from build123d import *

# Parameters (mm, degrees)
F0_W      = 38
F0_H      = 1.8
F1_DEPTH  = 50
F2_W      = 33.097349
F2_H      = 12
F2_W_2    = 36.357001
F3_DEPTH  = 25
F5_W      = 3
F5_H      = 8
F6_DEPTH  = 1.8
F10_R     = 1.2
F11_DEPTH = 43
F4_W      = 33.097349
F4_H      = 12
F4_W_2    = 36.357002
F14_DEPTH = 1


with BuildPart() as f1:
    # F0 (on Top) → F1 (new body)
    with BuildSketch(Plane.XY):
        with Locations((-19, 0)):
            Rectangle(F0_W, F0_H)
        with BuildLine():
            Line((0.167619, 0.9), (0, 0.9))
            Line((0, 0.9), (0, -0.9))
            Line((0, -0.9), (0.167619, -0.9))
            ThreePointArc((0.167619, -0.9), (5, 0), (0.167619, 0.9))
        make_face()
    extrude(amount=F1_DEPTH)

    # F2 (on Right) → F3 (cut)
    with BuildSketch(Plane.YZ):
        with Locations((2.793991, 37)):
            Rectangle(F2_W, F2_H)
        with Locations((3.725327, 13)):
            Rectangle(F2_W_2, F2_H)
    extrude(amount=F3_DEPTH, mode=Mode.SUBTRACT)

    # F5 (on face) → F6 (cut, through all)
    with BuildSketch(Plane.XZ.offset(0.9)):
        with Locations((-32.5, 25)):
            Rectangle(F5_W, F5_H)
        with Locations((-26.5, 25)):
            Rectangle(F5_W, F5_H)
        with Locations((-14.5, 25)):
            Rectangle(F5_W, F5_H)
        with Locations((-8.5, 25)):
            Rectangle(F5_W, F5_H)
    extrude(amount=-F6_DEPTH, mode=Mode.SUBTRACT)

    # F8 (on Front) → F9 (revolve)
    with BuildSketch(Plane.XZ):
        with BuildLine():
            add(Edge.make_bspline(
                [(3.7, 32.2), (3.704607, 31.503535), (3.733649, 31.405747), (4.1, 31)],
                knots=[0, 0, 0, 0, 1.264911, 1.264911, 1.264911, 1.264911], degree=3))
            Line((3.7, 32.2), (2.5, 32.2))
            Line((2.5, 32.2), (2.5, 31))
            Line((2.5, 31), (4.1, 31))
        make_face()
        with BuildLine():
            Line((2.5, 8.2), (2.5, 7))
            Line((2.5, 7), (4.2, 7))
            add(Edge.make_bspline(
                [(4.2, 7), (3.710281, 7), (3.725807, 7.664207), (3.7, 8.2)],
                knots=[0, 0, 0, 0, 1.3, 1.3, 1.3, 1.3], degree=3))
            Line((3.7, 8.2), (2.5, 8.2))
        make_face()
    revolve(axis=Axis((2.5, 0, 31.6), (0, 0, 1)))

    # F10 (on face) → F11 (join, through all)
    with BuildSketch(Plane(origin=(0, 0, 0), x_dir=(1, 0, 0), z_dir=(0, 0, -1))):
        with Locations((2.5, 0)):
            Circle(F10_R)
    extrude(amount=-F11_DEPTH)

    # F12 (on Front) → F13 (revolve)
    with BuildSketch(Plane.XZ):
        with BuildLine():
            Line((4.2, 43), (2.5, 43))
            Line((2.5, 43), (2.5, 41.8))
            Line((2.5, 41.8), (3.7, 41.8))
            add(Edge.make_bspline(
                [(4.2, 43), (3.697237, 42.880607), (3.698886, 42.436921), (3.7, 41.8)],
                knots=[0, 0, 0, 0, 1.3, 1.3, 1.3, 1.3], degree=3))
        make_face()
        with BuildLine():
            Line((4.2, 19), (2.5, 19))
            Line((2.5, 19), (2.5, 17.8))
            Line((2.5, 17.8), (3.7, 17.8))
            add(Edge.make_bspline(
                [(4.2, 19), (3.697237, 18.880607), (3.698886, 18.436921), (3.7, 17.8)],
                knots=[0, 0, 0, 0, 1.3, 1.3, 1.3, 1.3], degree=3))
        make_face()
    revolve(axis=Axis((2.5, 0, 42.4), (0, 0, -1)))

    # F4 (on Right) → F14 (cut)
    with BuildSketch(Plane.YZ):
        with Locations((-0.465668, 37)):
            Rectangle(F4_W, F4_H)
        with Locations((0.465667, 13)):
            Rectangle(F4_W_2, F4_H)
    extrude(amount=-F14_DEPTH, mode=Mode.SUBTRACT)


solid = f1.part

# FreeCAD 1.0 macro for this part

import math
import FreeCAD as App
import Part
import Sketcher
from FreeCAD import Vector

doc = App.newDocument("Part")
body = doc.addObject("PartDesign::Body", "Body")

# Sketch on XY plane
sketch1 = body.newObject("Sketcher::SketchObject", "Sketch")
sketch1.AttachmentSupport = (doc.getObject("XY_Plane"), [""])
sketch1.MapMode = "FlatFace"
sketch1.addGeometry(Part.LineSegment(Vector(-38, 0.9, 0), Vector(-38, -0.9, 0)), False)
sketch1.addGeometry(Part.LineSegment(Vector(-38, -0.9, 0), Vector(0.2, -0.9, 0)), False)
sketch1.addGeometry(Part.ArcOfCircle(Part.Circle(Vector(2.5, 0, 0), Vector(0, 0, 1), 2.5), math.radians(-159), math.radians(159)), False)
sketch1.addGeometry(Part.LineSegment(Vector(0.2, 0.9, 0), Vector(-38, 0.9, 0)), False)
sketch1.addConstraint(Sketcher.Constraint("Coincident", 0, 2, 1, 1))
sketch1.addConstraint(Sketcher.Constraint("Coincident", 1, 2, 2, 1))
sketch1.addConstraint(Sketcher.Constraint("Coincident", 2, 2, 3, 1))
sketch1.addConstraint(Sketcher.Constraint("Coincident", 3, 2, 0, 1))
sketch1.addConstraint(Sketcher.Constraint("Vertical", 0))
sketch1.addConstraint(Sketcher.Constraint("Horizontal", 1))
sketch1.addConstraint(Sketcher.Constraint("Horizontal", 3))
sketch1.addConstraint(Sketcher.Constraint("Symmetric", 1, 2, 2, 2, -1))
sketch1.addConstraint(Sketcher.Constraint("Radius", 2, 2.5))
sketch1.addConstraint(Sketcher.Constraint("DistanceY", 0, 2, 0, 1, 1.8))
sketch1.addConstraint(Sketcher.Constraint("DistanceX", 0, 2, -1, 1, 38.0))
sketch1.addConstraint(Sketcher.Constraint("DistanceX", -1, 1, 2, 3, 2.5))
pad1 = body.newObject("PartDesign::Pad", "Pad")
pad1.Profile = sketch1
pad1.Length = 50

# Sketch on YZ plane
sketch2 = body.newObject("Sketcher::SketchObject", "Sketch001")
sketch2.AttachmentSupport = (doc.getObject("YZ_Plane"), [""])
sketch2.MapMode = "FlatFace"
sketch2.addGeometry(Part.LineSegment(Vector(-14, 43, 0), Vector(-14, 31, 0)), False)
sketch2.addGeometry(Part.LineSegment(Vector(-14, 31, 0), Vector(19, 31, 0)), False)
sketch2.addGeometry(Part.LineSegment(Vector(19, 31, 0), Vector(19, 43, 0)), False)
sketch2.addGeometry(Part.LineSegment(Vector(19, 43, 0), Vector(-14, 43, 0)), False)
sketch2.addGeometry(Part.LineSegment(Vector(-14, 19, 0), Vector(-14, 7, 0)), False)
sketch2.addGeometry(Part.LineSegment(Vector(-14, 7, 0), Vector(22, 7, 0)), False)
sketch2.addGeometry(Part.LineSegment(Vector(22, 7, 0), Vector(22, 19, 0)), False)
sketch2.addGeometry(Part.LineSegment(Vector(22, 19, 0), Vector(-14, 19, 0)), False)
sketch2.addConstraint(Sketcher.Constraint("Coincident", 0, 2, 1, 1))
sketch2.addConstraint(Sketcher.Constraint("Coincident", 1, 2, 2, 1))
sketch2.addConstraint(Sketcher.Constraint("Coincident", 2, 2, 3, 1))
sketch2.addConstraint(Sketcher.Constraint("Coincident", 3, 2, 0, 1))
sketch2.addConstraint(Sketcher.Constraint("Coincident", 4, 2, 5, 1))
sketch2.addConstraint(Sketcher.Constraint("Coincident", 5, 2, 6, 1))
sketch2.addConstraint(Sketcher.Constraint("Coincident", 6, 2, 7, 1))
sketch2.addConstraint(Sketcher.Constraint("Coincident", 7, 2, 4, 1))
sketch2.addConstraint(Sketcher.Constraint("Vertical", 0))
sketch2.addConstraint(Sketcher.Constraint("Horizontal", 1))
sketch2.addConstraint(Sketcher.Constraint("Vertical", 2))
sketch2.addConstraint(Sketcher.Constraint("Horizontal", 3))
sketch2.addConstraint(Sketcher.Constraint("Vertical", 4))
sketch2.addConstraint(Sketcher.Constraint("Horizontal", 5))
sketch2.addConstraint(Sketcher.Constraint("Vertical", 6))
sketch2.addConstraint(Sketcher.Constraint("Horizontal", 7))
sketch2.addConstraint(Sketcher.Constraint("Equal", 2, 4))
sketch2.addConstraint(Sketcher.Constraint("DistanceY", 0, 2, 0, 1, 12.0))
sketch2.addConstraint(Sketcher.Constraint("DistanceY", -1, 1, 0, 2, 31.0))
sketch2.addConstraint(Sketcher.Constraint("DistanceY", -1, 1, 4, 2, 7.0))
sketch2.addConstraint(Sketcher.Constraint("DistanceX", 5, 1, 5, 2, 36.357001))
sketch2.addConstraint(Sketcher.Constraint("DistanceX", 1, 1, 1, 2, 33.097349))
sketch2.addConstraint(Sketcher.Constraint("DistanceX", 4, 2, 0, 2, 0.69849))
sketch2.addConstraint(Sketcher.Constraint("DistanceX", 0, 2, -1, 1, 13.754684))
pocket1 = body.newObject("PartDesign::Pocket", "Pocket")
pocket1.Profile = sketch2
pocket1.Length = 25
pocket1.Reversed = True

# Sketch on XZ plane
sketch3 = body.newObject("Sketcher::SketchObject", "Sketch002")
sketch3.AttachmentSupport = (doc.getObject("XZ_Plane"), [""])
sketch3.MapMode = "FlatFace"
sketch3.AttachmentOffset = App.Placement(Vector(0, 0, 0.9), App.Rotation())
sketch3.addGeometry(Part.LineSegment(Vector(-34, 29, 0), Vector(-34, 21, 0)), False)
sketch3.addGeometry(Part.LineSegment(Vector(-34, 21, 0), Vector(-31, 21, 0)), False)
sketch3.addGeometry(Part.LineSegment(Vector(-31, 21, 0), Vector(-31, 29, 0)), False)
sketch3.addGeometry(Part.LineSegment(Vector(-31, 29, 0), Vector(-34, 29, 0)), False)
sketch3.addGeometry(Part.LineSegment(Vector(-28, 29, 0), Vector(-28, 21, 0)), False)
sketch3.addGeometry(Part.LineSegment(Vector(-28, 21, 0), Vector(-25, 21, 0)), False)
sketch3.addGeometry(Part.LineSegment(Vector(-25, 21, 0), Vector(-25, 29, 0)), False)
sketch3.addGeometry(Part.LineSegment(Vector(-25, 29, 0), Vector(-28, 29, 0)), False)
sketch3.addGeometry(Part.LineSegment(Vector(-16, 29, 0), Vector(-16, 21, 0)), False)
sketch3.addGeometry(Part.LineSegment(Vector(-16, 21, 0), Vector(-13, 21, 0)), False)
sketch3.addGeometry(Part.LineSegment(Vector(-13, 21, 0), Vector(-13, 29, 0)), False)
sketch3.addGeometry(Part.LineSegment(Vector(-13, 29, 0), Vector(-16, 29, 0)), False)
sketch3.addGeometry(Part.LineSegment(Vector(-10, 29, 0), Vector(-10, 21, 0)), False)
sketch3.addGeometry(Part.LineSegment(Vector(-10, 21, 0), Vector(-7, 21, 0)), False)
sketch3.addGeometry(Part.LineSegment(Vector(-7, 21, 0), Vector(-7, 29, 0)), False)
sketch3.addGeometry(Part.LineSegment(Vector(-7, 29, 0), Vector(-10, 29, 0)), False)
sketch3.addConstraint(Sketcher.Constraint("Coincident", 0, 2, 1, 1))
sketch3.addConstraint(Sketcher.Constraint("Coincident", 1, 2, 2, 1))
sketch3.addConstraint(Sketcher.Constraint("Coincident", 2, 2, 3, 1))
sketch3.addConstraint(Sketcher.Constraint("Coincident", 3, 2, 0, 1))
sketch3.addConstraint(Sketcher.Constraint("Coincident", 4, 2, 5, 1))
sketch3.addConstraint(Sketcher.Constraint("Coincident", 5, 2, 6, 1))
sketch3.addConstraint(Sketcher.Constraint("Coincident", 6, 2, 7, 1))
sketch3.addConstraint(Sketcher.Constraint("Coincident", 7, 2, 4, 1))
sketch3.addConstraint(Sketcher.Constraint("Coincident", 8, 2, 9, 1))
sketch3.addConstraint(Sketcher.Constraint("Coincident", 9, 2, 10, 1))
sketch3.addConstraint(Sketcher.Constraint("Coincident", 10, 2, 11, 1))
sketch3.addConstraint(Sketcher.Constraint("Coincident", 11, 2, 8, 1))
sketch3.addConstraint(Sketcher.Constraint("Coincident", 12, 2, 13, 1))
sketch3.addConstraint(Sketcher.Constraint("Coincident", 13, 2, 14, 1))
sketch3.addConstraint(Sketcher.Constraint("Coincident", 14, 2, 15, 1))
sketch3.addConstraint(Sketcher.Constraint("Coincident", 15, 2, 12, 1))
sketch3.addConstraint(Sketcher.Constraint("Vertical", 0))
sketch3.addConstraint(Sketcher.Constraint("Horizontal", 1))
sketch3.addConstraint(Sketcher.Constraint("Vertical", 2))
sketch3.addConstraint(Sketcher.Constraint("Horizontal", 3))
sketch3.addConstraint(Sketcher.Constraint("Vertical", 4))
sketch3.addConstraint(Sketcher.Constraint("Horizontal", 5))
sketch3.addConstraint(Sketcher.Constraint("Vertical", 6))
sketch3.addConstraint(Sketcher.Constraint("Horizontal", 7))
sketch3.addConstraint(Sketcher.Constraint("Vertical", 8))
sketch3.addConstraint(Sketcher.Constraint("Horizontal", 9))
sketch3.addConstraint(Sketcher.Constraint("Vertical", 10))
sketch3.addConstraint(Sketcher.Constraint("Horizontal", 11))
sketch3.addConstraint(Sketcher.Constraint("Vertical", 12))
sketch3.addConstraint(Sketcher.Constraint("Horizontal", 13))
sketch3.addConstraint(Sketcher.Constraint("Vertical", 14))
sketch3.addConstraint(Sketcher.Constraint("Horizontal", 15))
sketch3.addConstraint(Sketcher.Constraint("Horizontal", 1, 2, 4, 2))
sketch3.addConstraint(Sketcher.Constraint("Horizontal", 3, 2, 6, 2))
sketch3.addConstraint(Sketcher.Constraint("Horizontal", 5, 2, 8, 2))
sketch3.addConstraint(Sketcher.Constraint("Horizontal", 7, 2, 10, 2))
sketch3.addConstraint(Sketcher.Constraint("Horizontal", 9, 2, 12, 2))
sketch3.addConstraint(Sketcher.Constraint("Horizontal", 11, 2, 14, 2))
sketch3.addConstraint(Sketcher.Constraint("Equal", 3, 5))
sketch3.addConstraint(Sketcher.Constraint("Equal", 7, 9))
sketch3.addConstraint(Sketcher.Constraint("Equal", 11, 13))
sketch3.addConstraint(Sketcher.Constraint("DistanceX", 1, 1, 1, 2, 3.0))
sketch3.addConstraint(Sketcher.Constraint("DistanceY", 0, 2, 0, 1, 8.0))
sketch3.addConstraint(Sketcher.Constraint("DistanceX", 0, 2, -1, 1, 34.0))
sketch3.addConstraint(Sketcher.Constraint("DistanceY", -1, 1, 0, 2, 21.0))
sketch3.addConstraint(Sketcher.Constraint("DistanceX", 4, 2, -1, 1, 28.0))
sketch3.addConstraint(Sketcher.Constraint("DistanceX", 8, 2, -1, 1, 16.0))
sketch3.addConstraint(Sketcher.Constraint("DistanceX", 12, 2, -1, 1, 10.0))
pocket2 = body.newObject("PartDesign::Pocket", "Pocket001")
pocket2.Profile = sketch3
pocket2.Type = "ThroughAll"

# Sketch on XZ plane
sketch4 = body.newObject("Sketcher::SketchObject", "Sketch003")
sketch4.AttachmentSupport = (doc.getObject("XZ_Plane"), [""])
sketch4.MapMode = "FlatFace"
sketch4.addGeometry(Part.BSplineCurve([Vector(3.7, 32.2, 0), Vector(3.704607, 31.503535, 0), Vector(3.733649, 31.405747, 0), Vector(4.1, 31, 0)], [4, 4], [0, 1.264911], False, 3, [1, 1, 1, 1], False), False)
sketch4.addGeometry(Part.LineSegment(Vector(3.7, 32.2, 0), Vector(2.5, 32.2, 0)), False)
sketch4.addGeometry(Part.LineSegment(Vector(2.5, 32.2, 0), Vector(2.5, 31, 0)), False)
sketch4.addGeometry(Part.LineSegment(Vector(2.5, 31, 0), Vector(4.1, 31, 0)), False)
sketch4.addGeometry(Part.LineSegment(Vector(2.5, 8.2, 0), Vector(2.5, 7, 0)), False)
sketch4.addGeometry(Part.LineSegment(Vector(2.5, 7, 0), Vector(4.2, 7, 0)), False)
sketch4.addGeometry(Part.BSplineCurve([Vector(4.2, 7, 0), Vector(3.710281, 7, 0), Vector(3.725807, 7.664207, 0), Vector(3.7, 8.2, 0)], [4, 4], [0, 1.3], False, 3, [1, 1, 1, 1], False), False)
sketch4.addGeometry(Part.LineSegment(Vector(3.7, 8.2, 0), Vector(2.5, 8.2, 0)), False)
sketch4.addGeometry(Part.LineSegment(Vector(2.5, 7, 0), Vector(2.5, 32.2, 0)), True)  # axis
sketch4.addConstraint(Sketcher.Constraint("Block", 0))
sketch4.addConstraint(Sketcher.Constraint("Block", 6))
sketch4.addConstraint(Sketcher.Constraint("Coincident", 0, 1, 1, 1))
sketch4.addConstraint(Sketcher.Constraint("Coincident", 1, 2, 2, 1))
sketch4.addConstraint(Sketcher.Constraint("Coincident", 2, 2, 3, 1))
sketch4.addConstraint(Sketcher.Constraint("Coincident", 3, 2, 0, 2))
sketch4.addConstraint(Sketcher.Constraint("Coincident", 4, 2, 5, 1))
sketch4.addConstraint(Sketcher.Constraint("Coincident", 5, 2, 6, 1))
sketch4.addConstraint(Sketcher.Constraint("Coincident", 6, 2, 7, 1))
sketch4.addConstraint(Sketcher.Constraint("Coincident", 7, 2, 4, 1))
sketch4.addConstraint(Sketcher.Constraint("Horizontal", 1))
sketch4.addConstraint(Sketcher.Constraint("Vertical", 2))
sketch4.addConstraint(Sketcher.Constraint("Horizontal", 3))
sketch4.addConstraint(Sketcher.Constraint("Vertical", 4))
sketch4.addConstraint(Sketcher.Constraint("Horizontal", 5))
sketch4.addConstraint(Sketcher.Constraint("Horizontal", 7))
sketch4.addConstraint(Sketcher.Constraint("Vertical", 8))
sketch4.addConstraint(Sketcher.Constraint("Coincident", 8, 1, 4, 2))
sketch4.addConstraint(Sketcher.Constraint("Coincident", 8, 2, 1, 2))
sketch4.addConstraint(Sketcher.Constraint("Equal", 7, 2))
revolution = body.newObject("PartDesign::Revolution", "Revolution")
revolution.Profile = sketch4
revolution.ReferenceAxis = (sketch4, ["Axis0"])
revolution.Angle = 360

# Sketch on XY plane
sketch5 = body.newObject("Sketcher::SketchObject", "Sketch004")
sketch5.AttachmentSupport = (doc.getObject("XY_Plane"), [""])
sketch5.MapMode = "FlatFace"
sketch5.addGeometry(Part.Circle(Vector(2.5, 0, 0), Vector(0, 0, 1), 1.2), False)
sketch5.addConstraint(Sketcher.Constraint("PointOnObject", 0, 3, -1))
sketch5.addConstraint(Sketcher.Constraint("Diameter", 0, 2.4))
sketch5.addConstraint(Sketcher.Constraint("DistanceX", -1, 1, 0, 3, 2.5))
pad2 = body.newObject("PartDesign::Pad", "Pad001")
pad2.Profile = sketch5
pad2.Type = "UpToLast"

# Sketch on XZ plane
sketch6 = body.newObject("Sketcher::SketchObject", "Sketch005")
sketch6.AttachmentSupport = (doc.getObject("XZ_Plane"), [""])
sketch6.MapMode = "FlatFace"
sketch6.addGeometry(Part.LineSegment(Vector(4.2, 43, 0), Vector(2.5, 43, 0)), False)
sketch6.addGeometry(Part.LineSegment(Vector(2.5, 43, 0), Vector(2.5, 41.8, 0)), False)
sketch6.addGeometry(Part.LineSegment(Vector(2.5, 41.8, 0), Vector(3.7, 41.8, 0)), False)
sketch6.addGeometry(Part.BSplineCurve([Vector(4.2, 43, 0), Vector(3.697237, 42.880607, 0), Vector(3.698886, 42.436921, 0), Vector(3.7, 41.8, 0)], [4, 4], [0, 1.3], False, 3, [1, 1, 1, 1], False), False)
sketch6.addGeometry(Part.LineSegment(Vector(4.2, 19, 0), Vector(2.5, 19, 0)), False)
sketch6.addGeometry(Part.LineSegment(Vector(2.5, 19, 0), Vector(2.5, 17.8, 0)), False)
sketch6.addGeometry(Part.LineSegment(Vector(2.5, 17.8, 0), Vector(3.7, 17.8, 0)), False)
sketch6.addGeometry(Part.BSplineCurve([Vector(4.2, 19, 0), Vector(3.697237, 18.880607, 0), Vector(3.698886, 18.436921, 0), Vector(3.7, 17.8, 0)], [4, 4], [0, 1.3], False, 3, [1, 1, 1, 1], False), False)
sketch6.addGeometry(Part.LineSegment(Vector(2.5, 43, 0), Vector(2.5, 17.8, 0)), True)  # axis
sketch6.addConstraint(Sketcher.Constraint("Block", 3))
sketch6.addConstraint(Sketcher.Constraint("Block", 7))
sketch6.addConstraint(Sketcher.Constraint("Coincident", 0, 2, 1, 1))
sketch6.addConstraint(Sketcher.Constraint("Coincident", 1, 2, 2, 1))
sketch6.addConstraint(Sketcher.Constraint("Coincident", 2, 2, 3, 2))
sketch6.addConstraint(Sketcher.Constraint("Coincident", 3, 1, 0, 1))
sketch6.addConstraint(Sketcher.Constraint("Coincident", 4, 2, 5, 1))
sketch6.addConstraint(Sketcher.Constraint("Coincident", 5, 2, 6, 1))
sketch6.addConstraint(Sketcher.Constraint("Coincident", 6, 2, 7, 2))
sketch6.addConstraint(Sketcher.Constraint("Coincident", 7, 1, 4, 1))
sketch6.addConstraint(Sketcher.Constraint("Horizontal", 0))
sketch6.addConstraint(Sketcher.Constraint("Vertical", 1))
sketch6.addConstraint(Sketcher.Constraint("Horizontal", 2))
sketch6.addConstraint(Sketcher.Constraint("Horizontal", 4))
sketch6.addConstraint(Sketcher.Constraint("Vertical", 5))
sketch6.addConstraint(Sketcher.Constraint("Horizontal", 6))
sketch6.addConstraint(Sketcher.Constraint("Vertical", 8))
sketch6.addConstraint(Sketcher.Constraint("Coincident", 8, 1, 0, 2))
sketch6.addConstraint(Sketcher.Constraint("Coincident", 8, 2, 5, 2))
sketch6.addConstraint(Sketcher.Constraint("Equal", 6, 1))
revolution2 = body.newObject("PartDesign::Revolution", "Revolution001")
revolution2.Profile = sketch6
revolution2.ReferenceAxis = (sketch6, ["Axis0"])
revolution2.Angle = 360

# Sketch on YZ plane
sketch7 = body.newObject("Sketcher::SketchObject", "Sketch006")
sketch7.AttachmentSupport = (doc.getObject("YZ_Plane"), [""])
sketch7.MapMode = "FlatFace"
sketch7.addGeometry(Part.LineSegment(Vector(-17, 43, 0), Vector(-17, 31, 0)), False)
sketch7.addGeometry(Part.LineSegment(Vector(-17, 31, 0), Vector(16, 31, 0)), False)
sketch7.addGeometry(Part.LineSegment(Vector(16, 31, 0), Vector(16, 43, 0)), False)
sketch7.addGeometry(Part.LineSegment(Vector(16, 43, 0), Vector(-17, 43, 0)), False)
sketch7.addGeometry(Part.LineSegment(Vector(-18, 19, 0), Vector(-18, 7, 0)), False)
sketch7.addGeometry(Part.LineSegment(Vector(-18, 7, 0), Vector(19, 7, 0)), False)
sketch7.addGeometry(Part.LineSegment(Vector(19, 7, 0), Vector(19, 19, 0)), False)
sketch7.addGeometry(Part.LineSegment(Vector(19, 19, 0), Vector(-18, 19, 0)), False)
sketch7.addConstraint(Sketcher.Constraint("Coincident", 0, 2, 1, 1))
sketch7.addConstraint(Sketcher.Constraint("Coincident", 1, 2, 2, 1))
sketch7.addConstraint(Sketcher.Constraint("Coincident", 2, 2, 3, 1))
sketch7.addConstraint(Sketcher.Constraint("Coincident", 3, 2, 0, 1))
sketch7.addConstraint(Sketcher.Constraint("Coincident", 4, 2, 5, 1))
sketch7.addConstraint(Sketcher.Constraint("Coincident", 5, 2, 6, 1))
sketch7.addConstraint(Sketcher.Constraint("Coincident", 6, 2, 7, 1))
sketch7.addConstraint(Sketcher.Constraint("Coincident", 7, 2, 4, 1))
sketch7.addConstraint(Sketcher.Constraint("Vertical", 0))
sketch7.addConstraint(Sketcher.Constraint("Horizontal", 1))
sketch7.addConstraint(Sketcher.Constraint("Vertical", 2))
sketch7.addConstraint(Sketcher.Constraint("Horizontal", 3))
sketch7.addConstraint(Sketcher.Constraint("Vertical", 4))
sketch7.addConstraint(Sketcher.Constraint("Horizontal", 5))
sketch7.addConstraint(Sketcher.Constraint("Vertical", 6))
sketch7.addConstraint(Sketcher.Constraint("Horizontal", 7))
sketch7.addConstraint(Sketcher.Constraint("Equal", 2, 4))
sketch7.addConstraint(Sketcher.Constraint("DistanceY", 0, 2, 0, 1, 12.0))
sketch7.addConstraint(Sketcher.Constraint("DistanceY", -1, 1, 0, 2, 31.0))
sketch7.addConstraint(Sketcher.Constraint("DistanceY", -1, 1, 4, 2, 7.0))
sketch7.addConstraint(Sketcher.Constraint("DistanceX", 1, 1, 1, 2, 33.097349))
sketch7.addConstraint(Sketcher.Constraint("DistanceX", 5, 1, 5, 2, 36.357002))
sketch7.addConstraint(Sketcher.Constraint("DistanceX", -1, 1, 5, 2, 18.644168))
sketch7.addConstraint(Sketcher.Constraint("DistanceX", 4, 2, 0, 2, 0.698491))
pocket3 = body.newObject("PartDesign::Pocket", "Pocket002")
pocket3.Profile = sketch7
pocket3.Length = 1

doc.recompute()
